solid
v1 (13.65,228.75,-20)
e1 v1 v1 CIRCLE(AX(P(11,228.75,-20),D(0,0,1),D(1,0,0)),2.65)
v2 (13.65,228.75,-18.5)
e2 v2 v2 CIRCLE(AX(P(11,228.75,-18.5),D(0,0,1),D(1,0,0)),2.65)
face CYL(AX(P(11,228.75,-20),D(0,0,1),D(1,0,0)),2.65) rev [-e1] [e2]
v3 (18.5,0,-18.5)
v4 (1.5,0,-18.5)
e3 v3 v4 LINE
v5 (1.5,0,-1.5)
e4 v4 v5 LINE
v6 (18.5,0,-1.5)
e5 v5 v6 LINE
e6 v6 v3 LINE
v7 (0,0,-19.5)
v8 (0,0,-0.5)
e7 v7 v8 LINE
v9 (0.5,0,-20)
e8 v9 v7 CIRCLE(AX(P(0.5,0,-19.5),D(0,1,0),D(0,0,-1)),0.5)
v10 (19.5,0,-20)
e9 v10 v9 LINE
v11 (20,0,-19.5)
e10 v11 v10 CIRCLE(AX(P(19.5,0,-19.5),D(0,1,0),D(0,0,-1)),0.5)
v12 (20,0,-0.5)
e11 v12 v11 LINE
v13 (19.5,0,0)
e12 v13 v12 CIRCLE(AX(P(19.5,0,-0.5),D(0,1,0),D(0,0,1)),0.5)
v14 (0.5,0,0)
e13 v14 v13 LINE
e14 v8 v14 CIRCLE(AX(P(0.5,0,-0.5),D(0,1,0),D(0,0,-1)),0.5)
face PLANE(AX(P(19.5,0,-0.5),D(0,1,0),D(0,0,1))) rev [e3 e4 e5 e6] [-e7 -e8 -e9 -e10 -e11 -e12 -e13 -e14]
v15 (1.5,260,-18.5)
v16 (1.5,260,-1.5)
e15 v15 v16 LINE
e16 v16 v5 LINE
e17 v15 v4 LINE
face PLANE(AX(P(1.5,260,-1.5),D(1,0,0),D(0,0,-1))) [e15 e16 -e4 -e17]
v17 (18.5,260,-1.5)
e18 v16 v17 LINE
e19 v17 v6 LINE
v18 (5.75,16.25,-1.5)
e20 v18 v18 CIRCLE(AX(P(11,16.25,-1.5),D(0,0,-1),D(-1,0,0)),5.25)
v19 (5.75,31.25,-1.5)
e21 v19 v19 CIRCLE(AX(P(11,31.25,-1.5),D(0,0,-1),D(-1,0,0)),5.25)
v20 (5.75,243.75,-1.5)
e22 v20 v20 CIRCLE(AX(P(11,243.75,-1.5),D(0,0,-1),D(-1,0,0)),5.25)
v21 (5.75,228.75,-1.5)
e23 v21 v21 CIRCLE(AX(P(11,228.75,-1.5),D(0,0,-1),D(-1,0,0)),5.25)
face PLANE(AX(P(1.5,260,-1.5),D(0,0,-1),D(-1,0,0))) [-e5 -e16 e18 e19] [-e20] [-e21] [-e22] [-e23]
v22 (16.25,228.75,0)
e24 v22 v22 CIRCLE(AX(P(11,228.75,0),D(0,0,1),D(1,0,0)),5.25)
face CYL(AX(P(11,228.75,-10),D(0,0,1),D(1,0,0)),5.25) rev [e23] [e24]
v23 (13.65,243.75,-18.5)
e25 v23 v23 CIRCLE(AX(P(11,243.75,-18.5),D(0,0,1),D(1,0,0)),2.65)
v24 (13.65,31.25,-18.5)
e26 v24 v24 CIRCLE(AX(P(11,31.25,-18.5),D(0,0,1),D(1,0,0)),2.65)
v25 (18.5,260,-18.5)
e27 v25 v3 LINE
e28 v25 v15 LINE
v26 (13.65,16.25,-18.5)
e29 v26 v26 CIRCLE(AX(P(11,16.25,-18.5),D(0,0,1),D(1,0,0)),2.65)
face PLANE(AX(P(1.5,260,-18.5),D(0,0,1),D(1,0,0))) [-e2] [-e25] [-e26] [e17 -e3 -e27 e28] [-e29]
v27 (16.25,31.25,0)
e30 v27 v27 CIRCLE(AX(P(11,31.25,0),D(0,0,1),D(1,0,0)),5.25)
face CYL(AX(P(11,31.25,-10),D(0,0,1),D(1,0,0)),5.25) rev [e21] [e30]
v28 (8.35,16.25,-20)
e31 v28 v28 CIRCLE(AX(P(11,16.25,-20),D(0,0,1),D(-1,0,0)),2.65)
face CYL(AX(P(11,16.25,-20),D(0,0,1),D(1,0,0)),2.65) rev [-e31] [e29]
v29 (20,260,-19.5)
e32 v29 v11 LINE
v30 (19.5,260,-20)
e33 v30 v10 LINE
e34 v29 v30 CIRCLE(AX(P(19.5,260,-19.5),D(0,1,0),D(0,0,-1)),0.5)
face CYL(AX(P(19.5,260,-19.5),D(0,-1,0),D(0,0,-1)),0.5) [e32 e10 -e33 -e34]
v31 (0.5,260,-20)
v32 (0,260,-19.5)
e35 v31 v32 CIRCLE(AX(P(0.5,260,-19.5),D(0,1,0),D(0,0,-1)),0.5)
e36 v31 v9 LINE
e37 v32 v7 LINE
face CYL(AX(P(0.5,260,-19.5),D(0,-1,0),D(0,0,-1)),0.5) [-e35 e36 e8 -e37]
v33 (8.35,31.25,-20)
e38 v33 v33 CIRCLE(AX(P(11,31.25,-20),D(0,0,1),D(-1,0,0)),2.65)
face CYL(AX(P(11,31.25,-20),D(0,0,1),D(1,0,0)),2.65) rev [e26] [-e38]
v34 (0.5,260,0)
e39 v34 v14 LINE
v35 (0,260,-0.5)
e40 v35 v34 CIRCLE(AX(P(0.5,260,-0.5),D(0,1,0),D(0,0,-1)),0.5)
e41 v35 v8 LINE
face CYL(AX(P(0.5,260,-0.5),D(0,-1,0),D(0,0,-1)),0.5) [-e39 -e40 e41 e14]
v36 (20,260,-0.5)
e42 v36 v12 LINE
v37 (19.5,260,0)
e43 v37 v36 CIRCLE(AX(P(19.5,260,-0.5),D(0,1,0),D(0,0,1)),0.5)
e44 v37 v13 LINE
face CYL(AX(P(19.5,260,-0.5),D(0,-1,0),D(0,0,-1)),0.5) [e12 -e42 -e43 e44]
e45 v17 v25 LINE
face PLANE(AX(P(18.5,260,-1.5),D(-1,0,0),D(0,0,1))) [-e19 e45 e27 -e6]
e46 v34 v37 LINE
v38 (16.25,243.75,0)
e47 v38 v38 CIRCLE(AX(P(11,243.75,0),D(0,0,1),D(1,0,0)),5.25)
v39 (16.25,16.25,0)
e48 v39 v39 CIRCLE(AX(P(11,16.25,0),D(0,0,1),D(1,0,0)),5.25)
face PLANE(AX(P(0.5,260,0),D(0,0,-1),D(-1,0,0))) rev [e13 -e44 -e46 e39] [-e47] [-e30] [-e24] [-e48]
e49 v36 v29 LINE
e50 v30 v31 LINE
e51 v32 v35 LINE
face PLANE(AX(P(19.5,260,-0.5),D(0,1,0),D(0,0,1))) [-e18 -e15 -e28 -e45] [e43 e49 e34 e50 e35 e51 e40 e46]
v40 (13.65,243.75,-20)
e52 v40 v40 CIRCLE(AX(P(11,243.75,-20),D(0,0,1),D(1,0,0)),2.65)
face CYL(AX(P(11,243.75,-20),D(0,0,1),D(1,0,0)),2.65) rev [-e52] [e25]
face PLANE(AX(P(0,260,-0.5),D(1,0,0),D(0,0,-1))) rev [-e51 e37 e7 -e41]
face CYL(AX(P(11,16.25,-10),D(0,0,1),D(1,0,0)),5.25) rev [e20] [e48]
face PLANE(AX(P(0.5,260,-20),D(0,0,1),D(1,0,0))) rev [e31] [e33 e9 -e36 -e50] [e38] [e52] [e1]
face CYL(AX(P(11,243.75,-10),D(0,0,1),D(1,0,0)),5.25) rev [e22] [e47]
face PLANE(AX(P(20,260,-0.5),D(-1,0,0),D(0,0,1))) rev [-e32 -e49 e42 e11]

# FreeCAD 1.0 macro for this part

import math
import FreeCAD as App
import Part
import Sketcher
Q = App.Units.Quantity


def add_polygon(sketch, points):
    """Adds a closed chain of lines whose ends are joined by coincident constraints."""
    first, n = sketch.GeometryCount, len(points)
    for a, b in zip(points, points[1:] + points[:1]):
        sketch.addGeometry(Part.LineSegment(App.Vector(*a, 0), App.Vector(*b, 0)), False)
    for i in range(n):
        sketch.addConstraint(Sketcher.Constraint("Coincident", first + i, 2, first + (i + 1) % n, 1))

doc = App.newDocument("Part")
body = doc.addObject("PartDesign::Body", "Body")

sketch1 = body.newObject("Sketcher::SketchObject", "Sketch")
sketch1.AttachmentSupport = (doc.getObject("XZ_Plane"), [""])
sketch1.MapMode = "FlatFace"
sketch1.addGeometry(Part.LineSegment(App.Vector(0.5, 0, 0), App.Vector(19.5, 0, 0)), False)
sketch1.addGeometry(Part.ArcOfCircle(Part.Circle(App.Vector(19.5, -0.5, 0), App.Vector(0, 0, 1), 0.5), math.radians(0), math.radians(90)), False)
sketch1.addGeometry(Part.LineSegment(App.Vector(20, -0.5, 0), App.Vector(20, -19.5, 0)), False)
sketch1.addGeometry(Part.ArcOfCircle(Part.Circle(App.Vector(19.5, -19.5, 0), App.Vector(0, 0, 1), 0.5), math.radians(-90), math.radians(0)), False)
sketch1.addGeometry(Part.LineSegment(App.Vector(19.5, -20, 0), App.Vector(0.5, -20, 0)), False)
sketch1.addGeometry(Part.ArcOfCircle(Part.Circle(App.Vector(0.5, -19.5, 0), App.Vector(0, 0, 1), 0.5), math.radians(180), math.radians(270)), False)
sketch1.addGeometry(Part.LineSegment(App.Vector(0, -19.5, 0), App.Vector(0, -0.5, 0)), False)
sketch1.addGeometry(Part.ArcOfCircle(Part.Circle(App.Vector(0.5, -0.5, 0), App.Vector(0, 0, 1), 0.5), math.radians(90), math.radians(180)), False)
add_polygon(sketch1, [(18.5, -1.5), (1.5, -1.5), (1.5, -18.5), (18.5, -18.5)])
sketch1.addConstraint(Sketcher.Constraint("Tangent", 0, 2, 1, 2))
sketch1.addConstraint(Sketcher.Constraint("Tangent", 1, 1, 2, 1))
sketch1.addConstraint(Sketcher.Constraint("Tangent", 2, 2, 3, 2))
sketch1.addConstraint(Sketcher.Constraint("Tangent", 3, 1, 4, 1))
sketch1.addConstraint(Sketcher.Constraint("Tangent", 4, 2, 5, 2))
sketch1.addConstraint(Sketcher.Constraint("Tangent", 5, 1, 6, 1))
sketch1.addConstraint(Sketcher.Constraint("Tangent", 6, 2, 7, 2))
sketch1.addConstraint(Sketcher.Constraint("Tangent", 7, 1, 0, 1))
sketch1.addConstraint(Sketcher.Constraint("Horizontal", 0))
sketch1.addConstraint(Sketcher.Constraint("Vertical", 2))
sketch1.addConstraint(Sketcher.Constraint("Horizontal", 4))
sketch1.addConstraint(Sketcher.Constraint("Vertical", 6))
sketch1.addConstraint(Sketcher.Constraint("Horizontal", 8))
sketch1.addConstraint(Sketcher.Constraint("Vertical", 9))
sketch1.addConstraint(Sketcher.Constraint("Horizontal", 10))
sketch1.addConstraint(Sketcher.Constraint("Vertical", 11))
sketch1.addConstraint(Sketcher.Constraint("Equal", 1, 3))
sketch1.addConstraint(Sketcher.Constraint("Equal", 3, 5))
sketch1.addConstraint(Sketcher.Constraint("Equal", 5, 7))
sketch1.addConstraint(Sketcher.Constraint("PointOnObject", 0, 2, -1))
sketch1.addConstraint(Sketcher.Constraint("PointOnObject", 5, 1, -2))
sketch1.addConstraint(Sketcher.Constraint("Equal", 4, 2))
sketch1.addConstraint(Sketcher.Constraint("Equal", 10, 9))
sketch1.addConstraint(Sketcher.Constraint("Radius", 1, Q("0.5 mm")))
sketch1.addConstraint(Sketcher.Constraint("DistanceX", 0, 1, 0, 2, Q("19 mm")))
sketch1.addConstraint(Sketcher.Constraint("DistanceX", 8, 2, 8, 1, Q("17 mm")))
sketch1.addConstraint(Sketcher.Constraint("DistanceX", 7, 3, 8, 2, Q("1 mm")))
sketch1.addConstraint(Sketcher.Constraint("DistanceY", 8, 2, 7, 3, Q("1 mm")))
pad1 = body.newObject("PartDesign::Pad", "Pad")
pad1.Profile = sketch1
pad1.Length = 260
pad1.Reversed = True

sketch2 = body.newObject("Sketcher::SketchObject", "Sketch001")
sketch2.AttachmentSupport = (doc.getObject("XY_Plane"), [""])
sketch2.MapMode = "FlatFace"
sketch2.addGeometry(Part.Circle(App.Vector(11, 243.8, 0), App.Vector(0, 0, 1), 2.6), False)
sketch2.addGeometry(Part.Circle(App.Vector(11, 228.8, 0), App.Vector(0, 0, 1), 2.6), False)
sketch2.addGeometry(Part.Circle(App.Vector(11, 31.2, 0), App.Vector(0, 0, 1), 2.6), False)
sketch2.addGeometry(Part.Circle(App.Vector(11, 16.2, 0), App.Vector(0, 0, 1), 2.6), False)
sketch2.addConstraint(Sketcher.Constraint("Equal", 0, 1))
sketch2.addConstraint(Sketcher.Constraint("Equal", 1, 2))
sketch2.addConstraint(Sketcher.Constraint("Equal", 2, 3))
sketch2.addConstraint(Sketcher.Constraint("Vertical", 0, 3, 1, 3))
sketch2.addConstraint(Sketcher.Constraint("Vertical", 1, 3, 2, 3))
sketch2.addConstraint(Sketcher.Constraint("Vertical", 2, 3, 3, 3))
sketch2.addConstraint(Sketcher.Constraint("Diameter", 0, Q("5.3 mm")))
sketch2.addConstraint(Sketcher.Constraint("DistanceX", -1, 1, 0, 3, Q("11 mm")))
sketch2.addConstraint(Sketcher.Constraint("DistanceY", 1, 3, 0, 3, Q("15 mm")))
sketch2.addConstraint(Sketcher.Constraint("DistanceY", 3, 3, 2, 3, Q("15 mm")))
sketch2.addConstraint(Sketcher.Constraint("DistanceY", 2, 3, 1, 3, Q("197.5 mm")))
sketch2.addConstraint(Sketcher.Constraint("DistanceY", -1, 1, 0, 3, Q("243.75 mm")))
pocket1 = body.newObject("PartDesign::Pocket", "Pocket")
pocket1.Profile = sketch2
pocket1.Type = "ThroughAll"

sketch3 = body.newObject("Sketcher::SketchObject", "Sketch002")
sketch3.AttachmentSupport = (doc.getObject("XY_Plane"), [""])
sketch3.MapMode = "FlatFace"
sketch3.addGeometry(Part.Circle(App.Vector(11, 244, 0), App.Vector(0, 0, 1), 5), False)
sketch3.addGeometry(Part.Circle(App.Vector(11, 229, 0), App.Vector(0, 0, 1), 5), False)
sketch3.addGeometry(Part.Circle(App.Vector(11, 31, 0), App.Vector(0, 0, 1), 5), False)
sketch3.addGeometry(Part.Circle(App.Vector(11, 16, 0), App.Vector(0, 0, 1), 5), False)
sketch3.addConstraint(Sketcher.Constraint("Equal", 0, 1))
sketch3.addConstraint(Sketcher.Constraint("Equal", 1, 2))
sketch3.addConstraint(Sketcher.Constraint("Equal", 2, 3))
sketch3.addConstraint(Sketcher.Constraint("Vertical", 0, 3, 1, 3))
sketch3.addConstraint(Sketcher.Constraint("Vertical", 1, 3, 2, 3))
sketch3.addConstraint(Sketcher.Constraint("Vertical", 2, 3, 3, 3))
sketch3.addConstraint(Sketcher.Constraint("Diameter", 0, Q("10.5 mm")))
sketch3.addConstraint(Sketcher.Constraint("DistanceX", -1, 1, 0, 3, Q("11 mm")))
sketch3.addConstraint(Sketcher.Constraint("DistanceY", 1, 3, 0, 3, Q("15 mm")))
sketch3.addConstraint(Sketcher.Constraint("DistanceY", 3, 3, 2, 3, Q("15 mm")))
sketch3.addConstraint(Sketcher.Constraint("DistanceY", 2, 3, 1, 3, Q("197.5 mm")))
sketch3.addConstraint(Sketcher.Constraint("DistanceY", -1, 1, 0, 3, Q("243.75 mm")))
pocket2 = body.newObject("PartDesign::Pocket", "Pocket001")
pocket2.Profile = sketch3
pocket2.Length = 10

doc.recompute()
